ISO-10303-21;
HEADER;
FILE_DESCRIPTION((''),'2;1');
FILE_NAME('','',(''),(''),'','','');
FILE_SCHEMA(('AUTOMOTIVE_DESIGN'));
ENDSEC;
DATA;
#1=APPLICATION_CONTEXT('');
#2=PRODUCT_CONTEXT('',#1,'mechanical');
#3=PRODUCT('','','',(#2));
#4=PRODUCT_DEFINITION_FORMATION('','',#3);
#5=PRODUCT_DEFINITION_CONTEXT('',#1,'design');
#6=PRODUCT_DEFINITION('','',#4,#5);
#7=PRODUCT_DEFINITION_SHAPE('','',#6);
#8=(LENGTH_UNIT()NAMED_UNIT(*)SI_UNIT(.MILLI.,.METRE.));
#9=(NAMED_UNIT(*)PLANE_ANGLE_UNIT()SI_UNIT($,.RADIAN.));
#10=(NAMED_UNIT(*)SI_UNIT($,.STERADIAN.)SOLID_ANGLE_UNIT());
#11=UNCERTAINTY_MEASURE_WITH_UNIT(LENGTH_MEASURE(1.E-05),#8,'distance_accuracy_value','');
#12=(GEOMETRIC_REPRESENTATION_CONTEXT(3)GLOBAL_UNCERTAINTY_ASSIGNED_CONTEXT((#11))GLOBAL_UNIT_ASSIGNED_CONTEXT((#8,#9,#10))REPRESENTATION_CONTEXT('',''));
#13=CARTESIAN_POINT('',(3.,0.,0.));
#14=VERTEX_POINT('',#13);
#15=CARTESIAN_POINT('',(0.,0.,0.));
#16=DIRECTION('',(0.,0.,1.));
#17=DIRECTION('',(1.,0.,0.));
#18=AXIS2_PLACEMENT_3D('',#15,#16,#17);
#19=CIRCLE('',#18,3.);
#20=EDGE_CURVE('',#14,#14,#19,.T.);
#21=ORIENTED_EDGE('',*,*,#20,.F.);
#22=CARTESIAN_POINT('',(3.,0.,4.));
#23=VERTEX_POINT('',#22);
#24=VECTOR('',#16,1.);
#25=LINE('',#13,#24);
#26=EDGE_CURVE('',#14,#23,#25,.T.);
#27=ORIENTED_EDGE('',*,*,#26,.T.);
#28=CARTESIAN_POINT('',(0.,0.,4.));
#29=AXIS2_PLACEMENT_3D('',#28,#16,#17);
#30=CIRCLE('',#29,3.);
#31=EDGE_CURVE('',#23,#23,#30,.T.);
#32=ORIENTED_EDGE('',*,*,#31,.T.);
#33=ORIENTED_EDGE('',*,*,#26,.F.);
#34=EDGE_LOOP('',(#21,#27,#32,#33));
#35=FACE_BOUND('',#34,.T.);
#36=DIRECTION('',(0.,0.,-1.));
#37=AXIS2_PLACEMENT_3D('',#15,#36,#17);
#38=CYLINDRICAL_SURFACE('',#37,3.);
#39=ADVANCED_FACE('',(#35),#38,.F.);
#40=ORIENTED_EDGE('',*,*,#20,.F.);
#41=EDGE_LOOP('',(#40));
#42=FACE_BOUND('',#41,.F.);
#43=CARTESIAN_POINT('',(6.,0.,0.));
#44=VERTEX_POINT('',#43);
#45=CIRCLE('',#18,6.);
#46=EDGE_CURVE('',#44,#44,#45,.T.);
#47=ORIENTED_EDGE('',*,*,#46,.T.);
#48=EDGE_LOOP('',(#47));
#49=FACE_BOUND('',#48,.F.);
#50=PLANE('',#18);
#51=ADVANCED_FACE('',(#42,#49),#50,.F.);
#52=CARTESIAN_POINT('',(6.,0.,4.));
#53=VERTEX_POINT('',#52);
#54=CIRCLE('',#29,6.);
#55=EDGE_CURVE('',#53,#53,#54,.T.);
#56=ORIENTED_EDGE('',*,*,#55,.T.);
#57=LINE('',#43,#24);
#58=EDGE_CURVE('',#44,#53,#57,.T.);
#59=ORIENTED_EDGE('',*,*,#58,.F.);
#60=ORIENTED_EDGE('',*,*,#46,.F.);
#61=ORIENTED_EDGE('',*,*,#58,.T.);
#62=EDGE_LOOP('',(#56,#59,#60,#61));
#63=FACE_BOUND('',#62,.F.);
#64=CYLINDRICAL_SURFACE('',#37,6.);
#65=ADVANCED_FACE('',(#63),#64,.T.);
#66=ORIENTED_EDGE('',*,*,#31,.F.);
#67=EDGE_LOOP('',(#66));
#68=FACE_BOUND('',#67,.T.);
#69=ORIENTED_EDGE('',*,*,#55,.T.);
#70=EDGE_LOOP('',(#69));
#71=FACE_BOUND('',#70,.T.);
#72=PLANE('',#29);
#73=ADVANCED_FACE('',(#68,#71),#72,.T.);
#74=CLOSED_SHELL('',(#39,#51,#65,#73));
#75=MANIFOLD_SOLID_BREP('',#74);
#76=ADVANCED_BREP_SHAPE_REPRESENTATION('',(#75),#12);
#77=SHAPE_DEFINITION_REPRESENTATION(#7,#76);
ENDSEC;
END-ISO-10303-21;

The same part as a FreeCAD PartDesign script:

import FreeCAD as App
import Part
import Sketcher
from FreeCAD import Vector
Q = App.Units.Quantity

doc = App.newDocument("Part")
body = doc.addObject("PartDesign::Body", "Body")

# Sketch on XY plane
sketch1 = body.newObject("Sketcher::SketchObject", "Sketch")
sketch1.AttachmentSupport = (doc.getObject("XY_Plane"), [""])
sketch1.MapMode = "FlatFace"
sketch1.addGeometry([
    Part.Circle(Vector(0, 0, 0), Vector(0, 0, 1), 6),
    Part.Circle(Vector(0, 0, 0), Vector(0, 0, 1), 3),
], False)
sketch1.addConstraint([
    Sketcher.Constraint("Coincident", 0, 3, -1, 1),
    Sketcher.Constraint("Coincident", 1, 3, -1, 1),
    Sketcher.Constraint("Diameter", 0, Q("12 mm")),
    Sketcher.Constraint("Diameter", 1, Q("6 mm")),
])
pad1 = body.newObject("PartDesign::Pad", "Pad")
pad1.Profile = sketch1
pad1.Length = 4

doc.recompute()
